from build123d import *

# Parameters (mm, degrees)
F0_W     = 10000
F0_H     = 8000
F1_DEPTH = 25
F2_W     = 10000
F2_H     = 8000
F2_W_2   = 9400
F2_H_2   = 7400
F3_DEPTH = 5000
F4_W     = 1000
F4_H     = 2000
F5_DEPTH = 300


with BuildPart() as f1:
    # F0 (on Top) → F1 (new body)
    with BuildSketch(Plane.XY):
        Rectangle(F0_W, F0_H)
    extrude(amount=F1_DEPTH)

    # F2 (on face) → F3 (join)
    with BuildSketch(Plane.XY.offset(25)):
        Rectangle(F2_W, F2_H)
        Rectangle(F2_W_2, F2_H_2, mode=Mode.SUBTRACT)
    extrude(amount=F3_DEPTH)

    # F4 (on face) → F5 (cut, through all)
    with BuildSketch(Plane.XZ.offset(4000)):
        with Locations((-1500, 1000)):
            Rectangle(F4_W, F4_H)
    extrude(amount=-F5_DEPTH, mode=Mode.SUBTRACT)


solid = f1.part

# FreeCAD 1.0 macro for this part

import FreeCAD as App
import Part
import Sketcher
Q = App.Units.Quantity


def add_polygon(sketch, points):
    """Adds a closed chain of lines whose ends are joined by coincident constraints."""
    first, n = sketch.GeometryCount, len(points)
    for a, b in zip(points, points[1:] + points[:1]):
        sketch.addGeometry(Part.LineSegment(App.Vector(*a, 0), App.Vector(*b, 0)), False)
    for i in range(n):
        sketch.addConstraint(Sketcher.Constraint("Coincident", first + i, 2, first + (i + 1) % n, 1))

doc = App.newDocument("Part")
body = doc.addObject("PartDesign::Body", "Body")

# Sketch on XY plane
sketch1 = body.newObject("Sketcher::SketchObject", "Sketch")
sketch1.AttachmentSupport = (doc.getObject("XY_Plane"), [""])
sketch1.MapMode = "FlatFace"
add_polygon(sketch1, [(-5000, 4000), (-5000, -4000), (5000, -4000), (5000, 4000)])  # lines 0-3
sketch1.addConstraint(Sketcher.Constraint("Vertical", 0))
sketch1.addConstraint(Sketcher.Constraint("Horizontal", 1))
sketch1.addConstraint(Sketcher.Constraint("Vertical", 2))
sketch1.addConstraint(Sketcher.Constraint("Horizontal", 3))
sketch1.addConstraint(Sketcher.Constraint("Symmetric", 0, 2, 2, 2, -1, 1))
sketch1.addConstraint(Sketcher.Constraint("DistanceX", 1, 1, 1, 2, Q("10000 mm")))
sketch1.addConstraint(Sketcher.Constraint("DistanceY", 0, 2, 0, 1, Q("8000 mm")))
pad1 = body.newObject("PartDesign::Pad", "Pad")
pad1.Profile = sketch1
pad1.Length = 25

# Sketch on XY plane
sketch2 = body.newObject("Sketcher::SketchObject", "Sketch001")
sketch2.AttachmentSupport = (doc.getObject("XY_Plane"), [""])
sketch2.MapMode = "FlatFace"
sketch2.AttachmentOffset = App.Placement(App.Vector(0, 0, 25), App.Rotation())
add_polygon(sketch2, [(-5000, 4000), (-5000, -4000), (5000, -4000), (5000, 4000)])  # lines 0-3
add_polygon(sketch2, [(4700, -3700), (-4700, -3700), (-4700, 3700), (4700, 3700)])  # lines 4-7
sketch2.addConstraint(Sketcher.Constraint("Vertical", 0))
sketch2.addConstraint(Sketcher.Constraint("Horizontal", 1))
sketch2.addConstraint(Sketcher.Constraint("Vertical", 2))
sketch2.addConstraint(Sketcher.Constraint("Horizontal", 3))
sketch2.addConstraint(Sketcher.Constraint("Horizontal", 4))
sketch2.addConstraint(Sketcher.Constraint("Vertical", 5))
sketch2.addConstraint(Sketcher.Constraint("Horizontal", 6))
sketch2.addConstraint(Sketcher.Constraint("Vertical", 7))
sketch2.addConstraint(Sketcher.Constraint("Symmetric", 0, 2, 2, 2, -1, 1))
sketch2.addConstraint(Sketcher.Constraint("Symmetric", 4, 2, 6, 2, -1, 1))
sketch2.addConstraint(Sketcher.Constraint("DistanceX", 1, 1, 1, 2, Q("10000 mm")))
sketch2.addConstraint(Sketcher.Constraint("DistanceX", 4, 2, 4, 1, Q("9400 mm")))
sketch2.addConstraint(Sketcher.Constraint("DistanceY", 0, 2, 0, 1, Q("8000 mm")))
sketch2.addConstraint(Sketcher.Constraint("DistanceY", 5, 1, 5, 2, Q("7400 mm")))
pad2 = body.newObject("PartDesign::Pad", "Pad001")
pad2.Profile = sketch2
pad2.Length = 5000

# Sketch on XZ plane
sketch3 = body.newObject("Sketcher::SketchObject", "Sketch002")
sketch3.AttachmentSupport = (doc.getObject("XZ_Plane"), [""])
sketch3.MapMode = "FlatFace"
sketch3.AttachmentOffset = App.Placement(App.Vector(0, 0, 4000), App.Rotation())
add_polygon(sketch3, [(-2000, 2000), (-2000, 0), (-1000, 0), (-1000, 2000)])  # lines 0-3
sketch3.addConstraint(Sketcher.Constraint("Vertical", 0))
sketch3.addConstraint(Sketcher.Constraint("Horizontal", 1))
sketch3.addConstraint(Sketcher.Constraint("Vertical", 2))
sketch3.addConstraint(Sketcher.Constraint("Horizontal", 3))
sketch3.addConstraint(Sketcher.Constraint("PointOnObject", 0, 2, -1))
sketch3.addConstraint(Sketcher.Constraint("DistanceX", 1, 1, 1, 2, Q("1000 mm")))
sketch3.addConstraint(Sketcher.Constraint("DistanceY", 0, 2, 0, 1, Q("2000 mm")))
sketch3.addConstraint(Sketcher.Constraint("DistanceX", 0, 2, -1, 1, Q("2000 mm")))
pocket1 = body.newObject("PartDesign::Pocket", "Pocket")
pocket1.Profile = sketch3
pocket1.Length = 300

doc.recompute()
